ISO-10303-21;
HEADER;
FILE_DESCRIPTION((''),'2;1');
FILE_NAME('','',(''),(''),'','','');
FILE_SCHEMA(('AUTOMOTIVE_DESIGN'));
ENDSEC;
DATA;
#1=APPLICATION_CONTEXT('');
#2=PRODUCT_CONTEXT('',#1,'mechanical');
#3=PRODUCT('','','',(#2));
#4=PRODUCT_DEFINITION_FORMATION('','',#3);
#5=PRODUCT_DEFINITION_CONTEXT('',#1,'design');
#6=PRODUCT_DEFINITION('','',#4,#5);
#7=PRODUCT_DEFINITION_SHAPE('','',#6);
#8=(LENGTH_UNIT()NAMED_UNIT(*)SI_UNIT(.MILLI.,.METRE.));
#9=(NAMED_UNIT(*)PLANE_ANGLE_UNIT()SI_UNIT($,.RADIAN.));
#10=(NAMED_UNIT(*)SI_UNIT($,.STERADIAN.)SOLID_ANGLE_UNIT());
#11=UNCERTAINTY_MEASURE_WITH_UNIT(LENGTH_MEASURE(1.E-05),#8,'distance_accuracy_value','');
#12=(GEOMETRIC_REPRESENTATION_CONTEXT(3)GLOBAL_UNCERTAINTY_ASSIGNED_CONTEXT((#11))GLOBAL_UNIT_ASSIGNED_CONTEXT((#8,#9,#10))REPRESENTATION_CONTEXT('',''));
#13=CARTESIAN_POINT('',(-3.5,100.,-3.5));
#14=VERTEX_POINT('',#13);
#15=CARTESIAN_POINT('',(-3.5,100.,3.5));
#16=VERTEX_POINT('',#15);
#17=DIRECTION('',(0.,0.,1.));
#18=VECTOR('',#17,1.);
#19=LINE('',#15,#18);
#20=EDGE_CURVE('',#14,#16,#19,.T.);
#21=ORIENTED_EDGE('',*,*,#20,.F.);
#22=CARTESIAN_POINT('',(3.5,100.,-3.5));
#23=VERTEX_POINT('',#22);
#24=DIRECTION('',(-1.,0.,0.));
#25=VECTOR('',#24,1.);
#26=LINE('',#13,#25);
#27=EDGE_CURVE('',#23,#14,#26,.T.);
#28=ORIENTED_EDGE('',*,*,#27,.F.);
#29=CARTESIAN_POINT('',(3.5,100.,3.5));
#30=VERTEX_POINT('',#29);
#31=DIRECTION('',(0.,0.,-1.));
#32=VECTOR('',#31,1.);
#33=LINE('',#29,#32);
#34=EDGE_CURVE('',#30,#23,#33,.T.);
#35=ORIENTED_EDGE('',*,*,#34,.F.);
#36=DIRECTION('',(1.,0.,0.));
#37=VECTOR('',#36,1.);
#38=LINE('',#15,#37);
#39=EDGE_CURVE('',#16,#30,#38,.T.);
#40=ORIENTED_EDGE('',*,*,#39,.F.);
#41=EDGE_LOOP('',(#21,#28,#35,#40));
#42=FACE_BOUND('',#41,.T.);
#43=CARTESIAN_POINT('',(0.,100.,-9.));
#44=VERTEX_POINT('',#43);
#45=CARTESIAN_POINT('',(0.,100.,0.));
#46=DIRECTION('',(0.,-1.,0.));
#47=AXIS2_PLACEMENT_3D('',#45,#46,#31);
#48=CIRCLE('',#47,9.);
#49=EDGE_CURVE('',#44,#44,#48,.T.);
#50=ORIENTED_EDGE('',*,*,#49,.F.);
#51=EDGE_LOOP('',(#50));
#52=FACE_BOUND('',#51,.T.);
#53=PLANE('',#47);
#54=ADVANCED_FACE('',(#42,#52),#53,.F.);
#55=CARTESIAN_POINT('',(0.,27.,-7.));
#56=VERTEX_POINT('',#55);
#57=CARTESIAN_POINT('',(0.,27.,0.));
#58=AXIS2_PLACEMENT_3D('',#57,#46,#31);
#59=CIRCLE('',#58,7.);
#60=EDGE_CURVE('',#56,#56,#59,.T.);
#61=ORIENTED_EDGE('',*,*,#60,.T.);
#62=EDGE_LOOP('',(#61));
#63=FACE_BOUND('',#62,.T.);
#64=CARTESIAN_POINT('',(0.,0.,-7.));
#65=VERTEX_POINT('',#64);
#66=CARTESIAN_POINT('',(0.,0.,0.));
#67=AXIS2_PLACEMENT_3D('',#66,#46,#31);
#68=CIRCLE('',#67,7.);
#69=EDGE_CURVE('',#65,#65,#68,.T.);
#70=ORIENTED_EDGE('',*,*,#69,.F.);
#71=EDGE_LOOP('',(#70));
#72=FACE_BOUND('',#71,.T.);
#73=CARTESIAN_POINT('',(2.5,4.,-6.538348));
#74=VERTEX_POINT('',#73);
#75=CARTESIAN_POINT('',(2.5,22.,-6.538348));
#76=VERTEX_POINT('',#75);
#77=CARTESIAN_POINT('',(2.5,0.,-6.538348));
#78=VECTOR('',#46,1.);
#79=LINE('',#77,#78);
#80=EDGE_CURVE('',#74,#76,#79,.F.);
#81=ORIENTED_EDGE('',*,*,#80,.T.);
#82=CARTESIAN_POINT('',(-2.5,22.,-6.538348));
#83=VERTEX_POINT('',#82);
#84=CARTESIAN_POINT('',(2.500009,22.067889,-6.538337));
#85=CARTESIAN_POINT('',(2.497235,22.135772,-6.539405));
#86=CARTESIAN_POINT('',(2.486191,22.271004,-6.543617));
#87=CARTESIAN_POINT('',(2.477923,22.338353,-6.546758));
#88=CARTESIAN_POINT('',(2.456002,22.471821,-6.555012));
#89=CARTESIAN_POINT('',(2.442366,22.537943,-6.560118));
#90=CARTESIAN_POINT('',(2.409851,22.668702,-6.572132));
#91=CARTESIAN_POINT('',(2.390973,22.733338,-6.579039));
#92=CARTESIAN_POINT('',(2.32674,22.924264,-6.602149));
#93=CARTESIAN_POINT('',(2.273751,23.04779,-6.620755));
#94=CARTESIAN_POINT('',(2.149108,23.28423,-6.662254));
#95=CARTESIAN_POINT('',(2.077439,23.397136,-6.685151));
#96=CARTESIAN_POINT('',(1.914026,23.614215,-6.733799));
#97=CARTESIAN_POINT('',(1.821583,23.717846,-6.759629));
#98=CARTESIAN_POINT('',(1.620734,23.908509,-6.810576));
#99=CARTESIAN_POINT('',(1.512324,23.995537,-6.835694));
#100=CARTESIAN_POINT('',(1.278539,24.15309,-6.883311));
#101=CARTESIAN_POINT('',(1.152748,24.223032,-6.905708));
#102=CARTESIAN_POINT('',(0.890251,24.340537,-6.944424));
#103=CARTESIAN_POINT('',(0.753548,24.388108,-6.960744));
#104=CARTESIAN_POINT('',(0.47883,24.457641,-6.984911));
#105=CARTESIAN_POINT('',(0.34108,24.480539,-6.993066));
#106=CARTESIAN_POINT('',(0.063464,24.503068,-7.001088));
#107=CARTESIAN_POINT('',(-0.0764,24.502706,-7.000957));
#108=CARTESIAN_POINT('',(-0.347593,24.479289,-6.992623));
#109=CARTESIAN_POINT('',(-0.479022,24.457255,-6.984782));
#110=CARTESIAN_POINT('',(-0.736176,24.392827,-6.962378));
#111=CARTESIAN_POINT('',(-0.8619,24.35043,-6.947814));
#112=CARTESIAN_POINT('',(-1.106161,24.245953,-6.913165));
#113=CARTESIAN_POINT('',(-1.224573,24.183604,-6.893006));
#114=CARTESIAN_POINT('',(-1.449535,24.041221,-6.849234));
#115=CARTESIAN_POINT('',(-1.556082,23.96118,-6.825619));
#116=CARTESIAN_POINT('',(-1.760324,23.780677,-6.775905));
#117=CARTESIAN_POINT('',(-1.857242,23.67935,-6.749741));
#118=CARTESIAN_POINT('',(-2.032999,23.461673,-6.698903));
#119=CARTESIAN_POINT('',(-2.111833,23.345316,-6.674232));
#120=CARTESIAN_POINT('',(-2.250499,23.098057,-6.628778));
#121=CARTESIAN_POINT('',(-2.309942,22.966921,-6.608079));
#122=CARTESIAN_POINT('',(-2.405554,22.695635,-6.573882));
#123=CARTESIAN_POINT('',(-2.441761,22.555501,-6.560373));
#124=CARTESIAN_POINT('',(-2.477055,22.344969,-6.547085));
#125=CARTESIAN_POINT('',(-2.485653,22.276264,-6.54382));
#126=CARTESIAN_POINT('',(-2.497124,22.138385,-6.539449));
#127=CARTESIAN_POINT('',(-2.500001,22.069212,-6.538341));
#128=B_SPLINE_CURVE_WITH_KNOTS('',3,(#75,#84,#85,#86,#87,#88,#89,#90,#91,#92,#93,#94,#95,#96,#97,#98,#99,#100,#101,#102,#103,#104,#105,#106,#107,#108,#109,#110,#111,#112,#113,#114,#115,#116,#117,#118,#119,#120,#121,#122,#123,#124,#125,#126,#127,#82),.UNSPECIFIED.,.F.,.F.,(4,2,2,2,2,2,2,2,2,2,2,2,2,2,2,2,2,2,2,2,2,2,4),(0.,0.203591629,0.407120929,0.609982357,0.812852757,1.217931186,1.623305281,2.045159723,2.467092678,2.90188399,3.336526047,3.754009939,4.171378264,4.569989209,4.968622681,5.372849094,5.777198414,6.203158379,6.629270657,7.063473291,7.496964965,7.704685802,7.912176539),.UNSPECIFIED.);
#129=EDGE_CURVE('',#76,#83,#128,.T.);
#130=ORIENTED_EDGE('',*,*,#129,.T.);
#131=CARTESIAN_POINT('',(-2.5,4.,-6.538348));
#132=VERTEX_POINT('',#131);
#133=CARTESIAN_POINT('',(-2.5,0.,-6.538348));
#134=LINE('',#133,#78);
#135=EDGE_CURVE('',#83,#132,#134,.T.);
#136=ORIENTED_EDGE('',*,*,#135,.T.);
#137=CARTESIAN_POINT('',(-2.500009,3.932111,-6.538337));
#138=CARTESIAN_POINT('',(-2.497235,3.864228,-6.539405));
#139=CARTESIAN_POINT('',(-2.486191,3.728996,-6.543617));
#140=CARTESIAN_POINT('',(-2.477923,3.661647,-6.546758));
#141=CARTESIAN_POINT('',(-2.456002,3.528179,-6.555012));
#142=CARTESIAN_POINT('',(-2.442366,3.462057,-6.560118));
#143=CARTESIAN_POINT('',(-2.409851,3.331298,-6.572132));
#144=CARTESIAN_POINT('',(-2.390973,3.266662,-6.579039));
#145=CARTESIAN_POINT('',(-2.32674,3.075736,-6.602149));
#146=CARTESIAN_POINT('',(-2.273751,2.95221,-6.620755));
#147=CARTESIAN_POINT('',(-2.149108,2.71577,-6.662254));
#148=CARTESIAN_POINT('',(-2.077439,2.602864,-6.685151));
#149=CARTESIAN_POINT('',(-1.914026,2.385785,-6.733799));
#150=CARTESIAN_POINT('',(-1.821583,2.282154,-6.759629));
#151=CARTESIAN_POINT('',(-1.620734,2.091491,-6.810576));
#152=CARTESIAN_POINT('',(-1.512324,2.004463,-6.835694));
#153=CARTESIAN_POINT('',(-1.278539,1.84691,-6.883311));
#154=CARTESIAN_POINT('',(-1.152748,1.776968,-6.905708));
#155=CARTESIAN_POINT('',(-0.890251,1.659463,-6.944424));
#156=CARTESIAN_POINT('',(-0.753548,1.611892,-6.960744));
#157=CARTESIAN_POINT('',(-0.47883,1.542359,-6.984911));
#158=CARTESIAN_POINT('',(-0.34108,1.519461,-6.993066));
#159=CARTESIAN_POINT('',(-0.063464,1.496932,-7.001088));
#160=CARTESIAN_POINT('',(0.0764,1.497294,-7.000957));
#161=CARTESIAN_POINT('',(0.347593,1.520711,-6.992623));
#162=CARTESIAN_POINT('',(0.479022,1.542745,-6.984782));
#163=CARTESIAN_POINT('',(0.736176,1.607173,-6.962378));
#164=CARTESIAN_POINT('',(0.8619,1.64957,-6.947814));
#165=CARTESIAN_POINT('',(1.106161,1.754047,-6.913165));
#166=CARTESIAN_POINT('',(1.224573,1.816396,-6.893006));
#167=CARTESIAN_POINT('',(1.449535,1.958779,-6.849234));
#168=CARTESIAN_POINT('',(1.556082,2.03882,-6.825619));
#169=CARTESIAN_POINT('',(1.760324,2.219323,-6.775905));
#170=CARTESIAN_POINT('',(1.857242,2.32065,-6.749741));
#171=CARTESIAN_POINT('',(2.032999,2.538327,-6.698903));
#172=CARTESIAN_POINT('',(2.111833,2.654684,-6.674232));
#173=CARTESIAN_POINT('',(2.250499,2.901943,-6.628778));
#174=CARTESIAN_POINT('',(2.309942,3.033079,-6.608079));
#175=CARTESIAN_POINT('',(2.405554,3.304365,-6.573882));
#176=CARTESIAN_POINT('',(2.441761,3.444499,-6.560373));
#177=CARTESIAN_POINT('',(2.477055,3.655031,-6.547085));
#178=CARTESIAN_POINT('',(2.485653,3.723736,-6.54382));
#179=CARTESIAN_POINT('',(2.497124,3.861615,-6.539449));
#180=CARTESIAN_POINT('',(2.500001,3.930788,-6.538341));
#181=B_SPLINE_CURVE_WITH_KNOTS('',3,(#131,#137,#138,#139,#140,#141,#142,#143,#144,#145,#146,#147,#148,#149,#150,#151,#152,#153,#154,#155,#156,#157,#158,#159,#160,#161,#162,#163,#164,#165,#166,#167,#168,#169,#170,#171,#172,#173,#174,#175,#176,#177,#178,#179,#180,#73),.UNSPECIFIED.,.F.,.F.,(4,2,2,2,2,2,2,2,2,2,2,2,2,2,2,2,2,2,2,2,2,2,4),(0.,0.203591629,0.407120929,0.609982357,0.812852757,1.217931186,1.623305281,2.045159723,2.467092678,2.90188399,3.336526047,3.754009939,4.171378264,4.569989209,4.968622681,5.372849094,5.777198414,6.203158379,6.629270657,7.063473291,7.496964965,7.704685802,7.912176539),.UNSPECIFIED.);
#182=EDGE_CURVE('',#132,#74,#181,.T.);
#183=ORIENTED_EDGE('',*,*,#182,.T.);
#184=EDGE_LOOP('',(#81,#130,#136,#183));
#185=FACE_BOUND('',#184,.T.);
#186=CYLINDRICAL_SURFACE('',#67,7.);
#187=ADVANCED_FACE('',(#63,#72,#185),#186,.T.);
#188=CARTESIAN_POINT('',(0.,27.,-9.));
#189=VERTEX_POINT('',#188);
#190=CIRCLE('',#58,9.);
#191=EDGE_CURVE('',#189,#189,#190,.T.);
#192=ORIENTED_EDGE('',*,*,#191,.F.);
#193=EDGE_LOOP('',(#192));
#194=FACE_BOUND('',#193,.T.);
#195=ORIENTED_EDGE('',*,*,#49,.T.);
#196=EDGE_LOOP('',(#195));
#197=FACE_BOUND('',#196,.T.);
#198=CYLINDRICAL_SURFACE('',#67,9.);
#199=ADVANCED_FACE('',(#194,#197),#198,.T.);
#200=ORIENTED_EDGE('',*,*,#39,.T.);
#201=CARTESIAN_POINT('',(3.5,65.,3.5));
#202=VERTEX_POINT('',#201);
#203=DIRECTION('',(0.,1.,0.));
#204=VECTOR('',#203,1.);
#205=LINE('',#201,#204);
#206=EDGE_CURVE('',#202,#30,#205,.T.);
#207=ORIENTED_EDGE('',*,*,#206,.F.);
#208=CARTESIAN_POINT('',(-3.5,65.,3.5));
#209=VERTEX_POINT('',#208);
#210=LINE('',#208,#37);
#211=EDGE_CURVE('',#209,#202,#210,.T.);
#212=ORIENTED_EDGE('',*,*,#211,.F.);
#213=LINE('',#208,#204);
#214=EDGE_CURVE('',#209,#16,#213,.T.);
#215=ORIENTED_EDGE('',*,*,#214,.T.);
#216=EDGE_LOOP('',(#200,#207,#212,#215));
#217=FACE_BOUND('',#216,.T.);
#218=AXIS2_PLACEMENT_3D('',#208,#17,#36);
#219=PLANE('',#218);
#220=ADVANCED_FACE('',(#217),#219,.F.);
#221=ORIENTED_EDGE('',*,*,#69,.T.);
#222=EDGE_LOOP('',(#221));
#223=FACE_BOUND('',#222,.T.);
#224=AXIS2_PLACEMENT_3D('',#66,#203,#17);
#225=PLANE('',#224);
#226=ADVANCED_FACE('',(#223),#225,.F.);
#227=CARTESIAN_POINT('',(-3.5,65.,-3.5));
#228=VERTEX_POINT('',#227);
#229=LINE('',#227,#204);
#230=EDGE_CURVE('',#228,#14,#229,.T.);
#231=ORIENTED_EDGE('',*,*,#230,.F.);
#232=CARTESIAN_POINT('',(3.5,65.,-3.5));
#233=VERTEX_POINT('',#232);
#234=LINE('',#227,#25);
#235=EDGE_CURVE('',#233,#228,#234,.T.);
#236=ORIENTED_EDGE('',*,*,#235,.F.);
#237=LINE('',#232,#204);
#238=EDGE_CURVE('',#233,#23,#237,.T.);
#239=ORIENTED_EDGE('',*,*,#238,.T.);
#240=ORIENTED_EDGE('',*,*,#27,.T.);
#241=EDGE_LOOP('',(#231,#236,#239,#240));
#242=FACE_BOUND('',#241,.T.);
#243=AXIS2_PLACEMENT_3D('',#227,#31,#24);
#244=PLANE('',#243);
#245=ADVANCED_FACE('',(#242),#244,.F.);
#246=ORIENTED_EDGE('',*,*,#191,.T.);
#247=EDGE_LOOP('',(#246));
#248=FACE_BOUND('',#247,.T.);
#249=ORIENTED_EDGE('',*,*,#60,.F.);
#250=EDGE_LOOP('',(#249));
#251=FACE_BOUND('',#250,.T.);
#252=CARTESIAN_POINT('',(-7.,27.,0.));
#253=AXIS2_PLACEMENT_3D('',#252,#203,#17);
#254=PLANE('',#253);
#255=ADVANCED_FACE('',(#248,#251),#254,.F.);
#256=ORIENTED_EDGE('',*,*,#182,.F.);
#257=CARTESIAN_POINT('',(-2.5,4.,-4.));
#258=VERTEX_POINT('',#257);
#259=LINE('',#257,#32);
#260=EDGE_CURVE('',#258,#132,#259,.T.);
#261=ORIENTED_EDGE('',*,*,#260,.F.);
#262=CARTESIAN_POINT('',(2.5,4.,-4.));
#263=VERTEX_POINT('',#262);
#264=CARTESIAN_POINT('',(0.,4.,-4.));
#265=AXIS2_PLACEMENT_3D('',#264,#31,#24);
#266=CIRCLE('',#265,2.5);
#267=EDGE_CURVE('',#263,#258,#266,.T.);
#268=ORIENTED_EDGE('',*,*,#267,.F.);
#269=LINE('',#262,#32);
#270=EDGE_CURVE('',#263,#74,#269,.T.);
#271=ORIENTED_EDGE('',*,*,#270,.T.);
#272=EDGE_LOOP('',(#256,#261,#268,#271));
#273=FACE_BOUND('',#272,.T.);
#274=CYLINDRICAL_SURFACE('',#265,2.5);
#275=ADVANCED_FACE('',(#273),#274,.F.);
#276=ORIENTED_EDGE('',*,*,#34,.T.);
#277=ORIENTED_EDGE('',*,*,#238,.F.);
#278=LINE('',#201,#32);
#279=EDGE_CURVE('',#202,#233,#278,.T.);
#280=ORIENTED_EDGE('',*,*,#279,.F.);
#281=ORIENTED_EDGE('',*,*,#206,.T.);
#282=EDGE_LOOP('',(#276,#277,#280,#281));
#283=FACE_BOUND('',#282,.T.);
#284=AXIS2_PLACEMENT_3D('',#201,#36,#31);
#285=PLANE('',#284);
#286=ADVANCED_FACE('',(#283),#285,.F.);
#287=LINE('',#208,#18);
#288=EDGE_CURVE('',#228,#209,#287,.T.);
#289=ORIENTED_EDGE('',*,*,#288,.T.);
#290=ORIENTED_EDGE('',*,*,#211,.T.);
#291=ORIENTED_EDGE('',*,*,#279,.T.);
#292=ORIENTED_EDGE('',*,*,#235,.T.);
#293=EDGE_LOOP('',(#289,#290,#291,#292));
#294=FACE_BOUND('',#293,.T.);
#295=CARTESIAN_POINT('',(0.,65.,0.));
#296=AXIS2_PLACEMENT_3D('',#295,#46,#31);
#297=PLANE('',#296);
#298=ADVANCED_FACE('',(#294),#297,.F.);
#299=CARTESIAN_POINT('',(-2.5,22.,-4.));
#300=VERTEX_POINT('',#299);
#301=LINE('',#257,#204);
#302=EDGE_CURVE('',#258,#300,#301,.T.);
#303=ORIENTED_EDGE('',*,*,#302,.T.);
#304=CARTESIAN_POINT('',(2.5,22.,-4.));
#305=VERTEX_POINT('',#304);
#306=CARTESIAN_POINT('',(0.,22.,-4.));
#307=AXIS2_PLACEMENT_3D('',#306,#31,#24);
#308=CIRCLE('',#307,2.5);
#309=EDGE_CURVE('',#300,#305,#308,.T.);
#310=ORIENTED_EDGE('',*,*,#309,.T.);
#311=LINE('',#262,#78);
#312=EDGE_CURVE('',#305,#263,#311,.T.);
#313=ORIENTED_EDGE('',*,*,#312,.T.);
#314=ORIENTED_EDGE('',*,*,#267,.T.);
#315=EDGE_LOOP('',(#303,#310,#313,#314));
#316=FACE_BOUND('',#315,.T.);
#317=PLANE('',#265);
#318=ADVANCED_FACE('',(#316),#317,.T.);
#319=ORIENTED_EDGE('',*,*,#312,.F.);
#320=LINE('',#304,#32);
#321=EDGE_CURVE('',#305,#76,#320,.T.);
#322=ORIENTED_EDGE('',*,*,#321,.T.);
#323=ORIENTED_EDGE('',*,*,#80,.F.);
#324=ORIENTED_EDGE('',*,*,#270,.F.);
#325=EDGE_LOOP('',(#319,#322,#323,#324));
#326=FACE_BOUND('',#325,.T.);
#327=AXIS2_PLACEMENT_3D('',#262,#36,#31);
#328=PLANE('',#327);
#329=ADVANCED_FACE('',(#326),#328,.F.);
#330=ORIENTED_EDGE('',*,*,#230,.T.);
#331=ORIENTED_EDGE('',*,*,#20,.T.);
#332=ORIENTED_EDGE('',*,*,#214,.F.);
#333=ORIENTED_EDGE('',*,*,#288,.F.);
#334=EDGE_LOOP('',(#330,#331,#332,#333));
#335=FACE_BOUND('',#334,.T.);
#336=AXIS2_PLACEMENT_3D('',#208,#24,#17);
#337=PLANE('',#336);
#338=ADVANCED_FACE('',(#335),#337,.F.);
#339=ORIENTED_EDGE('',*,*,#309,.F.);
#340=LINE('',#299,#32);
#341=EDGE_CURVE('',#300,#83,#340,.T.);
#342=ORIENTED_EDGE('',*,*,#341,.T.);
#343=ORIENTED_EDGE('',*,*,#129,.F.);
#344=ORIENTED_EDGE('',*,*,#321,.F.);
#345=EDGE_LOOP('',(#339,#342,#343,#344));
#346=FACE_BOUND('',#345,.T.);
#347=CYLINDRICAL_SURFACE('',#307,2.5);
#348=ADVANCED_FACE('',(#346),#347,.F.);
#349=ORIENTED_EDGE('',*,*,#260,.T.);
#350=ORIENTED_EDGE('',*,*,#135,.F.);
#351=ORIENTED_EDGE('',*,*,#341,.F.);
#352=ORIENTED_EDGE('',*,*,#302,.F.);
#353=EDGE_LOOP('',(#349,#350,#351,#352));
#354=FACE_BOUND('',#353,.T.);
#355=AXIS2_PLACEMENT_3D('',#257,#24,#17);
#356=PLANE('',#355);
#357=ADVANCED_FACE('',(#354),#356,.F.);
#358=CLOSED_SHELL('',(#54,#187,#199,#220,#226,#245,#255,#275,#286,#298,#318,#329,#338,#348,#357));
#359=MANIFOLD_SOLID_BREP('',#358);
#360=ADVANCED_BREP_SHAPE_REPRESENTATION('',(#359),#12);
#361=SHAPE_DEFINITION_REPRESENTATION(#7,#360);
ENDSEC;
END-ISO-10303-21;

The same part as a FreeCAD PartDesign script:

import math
import FreeCAD as App
import Part
import Sketcher

V = App.Vector

doc = App.newDocument("Part")
params = doc.addObject("Spreadsheet::Sheet", "Params")
for row, (alias, value) in enumerate([
    ("sketch1_width", "7 mm"),
    ("sketch1_width2", "9 mm"),
    ("sketch1_height", "100 mm"),
    ("sketch1_height2", "73 mm"),
    ("revolution_angle", "360 deg"),
    ("sketch2_width", "7 mm"),
    ("pocket1_length", "35 mm"),
    ("sketch3_radius", "2.5 mm"),
    ("sketch3_height", "18 mm"),
    ("pocket2_length", "3 mm"),
], start=1):
    params.set(f"A{row}", alias)
    params.set(f"B{row}", "=" + value)
    params.setAlias(f"B{row}", alias)

body = doc.addObject("PartDesign::Body", "Body")

# Sketch on XY plane
sketch1 = body.newObject("Sketcher::SketchObject", "Sketch")
sketch1.AttachmentSupport = (doc.getObject("XY_Plane"), [""])
sketch1.MapMode = "FlatFace"
sketch1.addGeometry(Part.LineSegment(V(-7, 0, 0), V(0, 0, 0)), False)
sketch1.addGeometry(Part.LineSegment(V(0, 0, 0), V(0, 100, 0)), False)
sketch1.addGeometry(Part.LineSegment(V(0, 100, 0), V(-9, 100, 0)), False)
sketch1.addGeometry(Part.LineSegment(V(-9, 100, 0), V(-9, 27, 0)), False)
sketch1.addGeometry(Part.LineSegment(V(-9, 27, 0), V(-7, 27, 0)), False)
sketch1.addGeometry(Part.LineSegment(V(-7, 27, 0), V(-7, 0, 0)), False)
sketch1.addConstraint(Sketcher.Constraint("Coincident", 0, 2, 1, 1))
sketch1.addConstraint(Sketcher.Constraint("Coincident", 1, 2, 2, 1))
sketch1.addConstraint(Sketcher.Constraint("Coincident", 2, 2, 3, 1))
sketch1.addConstraint(Sketcher.Constraint("Coincident", 3, 2, 4, 1))
sketch1.addConstraint(Sketcher.Constraint("Coincident", 4, 2, 5, 1))
sketch1.addConstraint(Sketcher.Constraint("Coincident", 5, 2, 0, 1))
sketch1.addConstraint(Sketcher.Constraint("Horizontal", 0))
sketch1.addConstraint(Sketcher.Constraint("Vertical", 1))
sketch1.addConstraint(Sketcher.Constraint("Horizontal", 2))
sketch1.addConstraint(Sketcher.Constraint("Vertical", 3))
sketch1.addConstraint(Sketcher.Constraint("Horizontal", 4))
sketch1.addConstraint(Sketcher.Constraint("Vertical", 5))
sketch1.addConstraint(Sketcher.Constraint("Coincident", 0, 2, -1, 1))
sketch1.addConstraint(Sketcher.Constraint("DistanceX", 0, 1, 0, 2, 7.0))
sketch1.addConstraint(Sketcher.Constraint("DistanceX", 2, 2, 2, 1, 9.0))
sketch1.addConstraint(Sketcher.Constraint("DistanceY", 1, 1, 1, 2, 100.0))
sketch1.addConstraint(Sketcher.Constraint("DistanceY", 3, 2, 3, 1, 73.0))
sketch1.setExpression("Constraints[13]", "Params.sketch1_width")
sketch1.setExpression("Constraints[14]", "Params.sketch1_width2")
sketch1.setExpression("Constraints[15]", "Params.sketch1_height")
sketch1.setExpression("Constraints[16]", "Params.sketch1_height2")
revolution = body.newObject("PartDesign::Revolution", "Revolution")
revolution.Profile = sketch1
revolution.ReferenceAxis = (sketch1, ["V_Axis"])
revolution.setExpression("Angle", "Params.revolution_angle")

# Sketch on XZ plane
sketch2 = body.newObject("Sketcher::SketchObject", "Sketch001")
sketch2.AttachmentSupport = (doc.getObject("XZ_Plane"), [""])
sketch2.MapMode = "FlatFace"
sketch2.AttachmentOffset = App.Placement(V(0, 0, -100), App.Rotation())
sketch2.addGeometry(Part.LineSegment(V(-4, -4, 0), V(-4, 4, 0)), False)
sketch2.addGeometry(Part.LineSegment(V(-4, 4, 0), V(4, 4, 0)), False)
sketch2.addGeometry(Part.LineSegment(V(4, 4, 0), V(4, -4, 0)), False)
sketch2.addGeometry(Part.LineSegment(V(4, -4, 0), V(-4, -4, 0)), False)
sketch2.addConstraint(Sketcher.Constraint("Coincident", 0, 2, 1, 1))
sketch2.addConstraint(Sketcher.Constraint("Coincident", 1, 2, 2, 1))
sketch2.addConstraint(Sketcher.Constraint("Coincident", 2, 2, 3, 1))
sketch2.addConstraint(Sketcher.Constraint("Coincident", 3, 2, 0, 1))
sketch2.addConstraint(Sketcher.Constraint("Vertical", 0))
sketch2.addConstraint(Sketcher.Constraint("Horizontal", 1))
sketch2.addConstraint(Sketcher.Constraint("Vertical", 2))
sketch2.addConstraint(Sketcher.Constraint("Horizontal", 3))
sketch2.addConstraint(Sketcher.Constraint("Symmetric", 0, 2, 2, 2, -1, 1))
sketch2.addConstraint(Sketcher.Constraint("Equal", 3, 0))
sketch2.addConstraint(Sketcher.Constraint("DistanceX", 1, 1, 1, 2, 7.0))
sketch2.setExpression("Constraints[10]", "Params.sketch2_width")
pocket1 = body.newObject("PartDesign::Pocket", "Pocket")
pocket1.Profile = sketch2
pocket1.setExpression("Length", "Params.pocket1_length")
pocket1.Reversed = True

# Sketch on XY plane
sketch3 = body.newObject("Sketcher::SketchObject", "Sketch002")
sketch3.AttachmentSupport = (doc.getObject("XY_Plane"), [""])
sketch3.MapMode = "FlatFace"
sketch3.AttachmentOffset = App.Placement(V(0, 0, -7), App.Rotation())
sketch3.addGeometry(Part.LineSegment(V(2.5, 22, 0), V(2.5, 4, 0)), False)
sketch3.addGeometry(Part.ArcOfCircle(Part.Circle(V(0, 4, 0), V(0, 0, 1), 2.5), math.radians(180), math.radians(360)), False)
sketch3.addGeometry(Part.LineSegment(V(-2.5, 4, 0), V(-2.5, 22, 0)), False)
sketch3.addGeometry(Part.ArcOfCircle(Part.Circle(V(0, 22, 0), V(0, 0, 1), 2.5), math.radians(0), math.radians(180)), False)
sketch3.addConstraint(Sketcher.Constraint("Tangent", 0, 2, 1, 2))
sketch3.addConstraint(Sketcher.Constraint("Tangent", 1, 1, 2, 1))
sketch3.addConstraint(Sketcher.Constraint("Tangent", 2, 2, 3, 2))
sketch3.addConstraint(Sketcher.Constraint("Tangent", 3, 1, 0, 1))
sketch3.addConstraint(Sketcher.Constraint("Vertical", 0))
sketch3.addConstraint(Sketcher.Constraint("Vertical", 2))
sketch3.addConstraint(Sketcher.Constraint("PointOnObject", 1, 3, -2))
sketch3.addConstraint(Sketcher.Constraint("Radius", 1, 2.5))
sketch3.addConstraint(Sketcher.Constraint("DistanceY", 0, 2, 0, 1, 18.0))
sketch3.addConstraint(Sketcher.Constraint("DistanceY", -1, 1, 1, 3, 4.0))
sketch3.setExpression("Constraints[7]", "Params.sketch3_radius")
sketch3.setExpression("Constraints[8]", "Params.sketch3_height")
pocket2 = body.newObject("PartDesign::Pocket", "Pocket001")
pocket2.Profile = sketch3
pocket2.setExpression("Length", "Params.pocket2_length")
pocket2.Reversed = True

doc.recompute()
